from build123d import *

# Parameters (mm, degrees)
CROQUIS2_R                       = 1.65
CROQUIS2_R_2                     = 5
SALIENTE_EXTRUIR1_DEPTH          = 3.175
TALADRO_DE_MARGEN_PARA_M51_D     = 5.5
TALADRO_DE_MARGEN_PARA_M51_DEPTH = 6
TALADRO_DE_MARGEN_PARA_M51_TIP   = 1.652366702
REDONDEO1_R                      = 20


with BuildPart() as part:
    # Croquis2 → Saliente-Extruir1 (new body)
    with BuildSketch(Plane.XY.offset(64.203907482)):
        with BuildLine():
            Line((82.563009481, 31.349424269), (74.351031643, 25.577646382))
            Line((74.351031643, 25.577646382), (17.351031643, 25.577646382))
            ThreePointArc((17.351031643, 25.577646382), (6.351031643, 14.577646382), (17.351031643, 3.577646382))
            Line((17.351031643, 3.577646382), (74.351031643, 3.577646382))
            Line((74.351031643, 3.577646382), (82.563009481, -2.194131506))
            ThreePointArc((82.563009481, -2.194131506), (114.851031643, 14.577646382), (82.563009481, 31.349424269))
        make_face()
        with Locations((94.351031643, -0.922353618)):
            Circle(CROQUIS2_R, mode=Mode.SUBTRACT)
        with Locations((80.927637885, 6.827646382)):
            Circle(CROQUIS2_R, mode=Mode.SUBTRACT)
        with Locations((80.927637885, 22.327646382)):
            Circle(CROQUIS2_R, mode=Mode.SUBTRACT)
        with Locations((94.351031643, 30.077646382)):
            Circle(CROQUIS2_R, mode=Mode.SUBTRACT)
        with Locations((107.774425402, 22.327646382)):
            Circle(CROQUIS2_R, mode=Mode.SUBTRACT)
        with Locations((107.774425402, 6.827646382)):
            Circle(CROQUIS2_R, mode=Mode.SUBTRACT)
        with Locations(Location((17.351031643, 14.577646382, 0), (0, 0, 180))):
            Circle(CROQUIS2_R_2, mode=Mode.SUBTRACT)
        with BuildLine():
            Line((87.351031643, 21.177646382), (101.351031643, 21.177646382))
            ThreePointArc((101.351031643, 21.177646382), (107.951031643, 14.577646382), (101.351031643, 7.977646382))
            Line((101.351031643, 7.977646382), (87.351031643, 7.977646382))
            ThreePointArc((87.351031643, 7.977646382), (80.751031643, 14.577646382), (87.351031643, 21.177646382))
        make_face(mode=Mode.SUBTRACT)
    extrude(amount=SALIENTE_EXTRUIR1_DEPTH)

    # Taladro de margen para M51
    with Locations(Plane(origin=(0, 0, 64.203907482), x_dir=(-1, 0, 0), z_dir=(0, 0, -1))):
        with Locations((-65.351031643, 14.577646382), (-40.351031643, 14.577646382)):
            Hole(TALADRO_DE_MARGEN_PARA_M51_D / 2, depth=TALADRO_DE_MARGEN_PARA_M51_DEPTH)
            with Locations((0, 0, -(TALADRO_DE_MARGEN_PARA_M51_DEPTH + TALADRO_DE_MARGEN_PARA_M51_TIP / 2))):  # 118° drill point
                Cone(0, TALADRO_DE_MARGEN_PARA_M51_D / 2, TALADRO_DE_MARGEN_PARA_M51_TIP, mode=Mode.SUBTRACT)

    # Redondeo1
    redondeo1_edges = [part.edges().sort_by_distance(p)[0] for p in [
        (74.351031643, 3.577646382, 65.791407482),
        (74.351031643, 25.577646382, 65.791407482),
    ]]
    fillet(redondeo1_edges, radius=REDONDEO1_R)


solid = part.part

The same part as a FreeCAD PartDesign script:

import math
import FreeCAD as App
import Part
import Sketcher
from FreeCAD import Vector


def edges_at(feature, points):
    """Names of the edges that pass closest to the given points."""
    edges = feature.Shape.Edges
    near = lambda p: min(range(len(edges)), key=lambda i: edges[i].distToShape(Part.Vertex(*p))[0])
    return sorted({f"Edge{near(p) + 1}" for p in points})

doc = App.newDocument("Part")
body = doc.addObject("PartDesign::Body", "Body")

sketch1 = body.newObject("Sketcher::SketchObject", "Sketch")
sketch1.AttachmentSupport = (doc.getObject("XY_Plane"), [""])
sketch1.MapMode = "FlatFace"
sketch1.AttachmentOffset = App.Placement(Vector(0, 0, 64.203907), App.Rotation())
sketch1.addGeometry(Part.LineSegment(Vector(82.6, 31.3, 0), Vector(74.4, 25.6, 0)), False)
sketch1.addGeometry(Part.LineSegment(Vector(74.4, 25.6, 0), Vector(17.4, 25.6, 0)), False)
sketch1.addGeometry(Part.ArcOfCircle(Part.Circle(Vector(17.4, 14.6, 0), Vector(0, 0, 1), 11), math.radians(90), math.radians(270)), False)
sketch1.addGeometry(Part.LineSegment(Vector(17.4, 3.6, 0), Vector(74.4, 3.6, 0)), False)
sketch1.addGeometry(Part.LineSegment(Vector(74.4, 3.6, 0), Vector(82.6, -2.2, 0)), False)
sketch1.addGeometry(Part.ArcOfCircle(Part.Circle(Vector(94.4, 14.6, 0), Vector(0, 0, 1), 20.5), math.radians(-125), math.radians(125)), False)
sketch1.addGeometry(Part.Circle(Vector(94.4, -0.9, 0), Vector(0, 0, 1), 1.6), False)
sketch1.addGeometry(Part.Circle(Vector(80.9, 6.8, 0), Vector(0, 0, 1), 1.6), False)
sketch1.addGeometry(Part.Circle(Vector(107.8, 6.8, 0), Vector(0, 0, 1), 1.6), False)
sketch1.addGeometry(Part.Circle(Vector(17.4, 14.6, 0), Vector(0, 0, 1), 5), False)
sketch1.addGeometry(Part.Circle(Vector(80.9, 22.3, 0), Vector(0, 0, 1), 1.6), False)
sketch1.addGeometry(Part.ArcOfCircle(Part.Circle(Vector(87.4, 14.6, 0), Vector(0, 0, 1), 6.6), math.radians(90), math.radians(270)), False)
sketch1.addGeometry(Part.LineSegment(Vector(87.4, 21.2, 0), Vector(101.4, 21.2, 0)), False)
sketch1.addGeometry(Part.ArcOfCircle(Part.Circle(Vector(101.4, 14.6, 0), Vector(0, 0, 1), 6.6), math.radians(-90), math.radians(90)), False)
sketch1.addGeometry(Part.LineSegment(Vector(101.4, 8, 0), Vector(87.4, 8, 0)), False)
sketch1.addGeometry(Part.Circle(Vector(107.8, 22.3, 0), Vector(0, 0, 1), 1.6), False)
sketch1.addGeometry(Part.Circle(Vector(94.4, 30.1, 0), Vector(0, 0, 1), 1.6), False)
sketch1.addConstraint(Sketcher.Constraint("Coincident", 0, 2, 1, 1))
sketch1.addConstraint(Sketcher.Constraint("Tangent", 1, 2, 2, 1))
sketch1.addConstraint(Sketcher.Constraint("Tangent", 2, 2, 3, 1))
sketch1.addConstraint(Sketcher.Constraint("Coincident", 3, 2, 4, 1))
sketch1.addConstraint(Sketcher.Constraint("Tangent", 4, 2, 5, 1))
sketch1.addConstraint(Sketcher.Constraint("Tangent", 5, 2, 0, 1))
sketch1.addConstraint(Sketcher.Constraint("Tangent", 11, 1, 12, 1))
sketch1.addConstraint(Sketcher.Constraint("Tangent", 12, 2, 13, 2))
sketch1.addConstraint(Sketcher.Constraint("Tangent", 13, 1, 14, 1))
sketch1.addConstraint(Sketcher.Constraint("Tangent", 14, 2, 11, 2))
sketch1.addConstraint(Sketcher.Constraint("Horizontal", 1))
sketch1.addConstraint(Sketcher.Constraint("Horizontal", 3))
sketch1.addConstraint(Sketcher.Constraint("Horizontal", 12))
sketch1.addConstraint(Sketcher.Constraint("Horizontal", 14))
sketch1.addConstraint(Sketcher.Constraint("Coincident", 9, 3, 2, 3))
sketch1.addConstraint(Sketcher.Constraint("Equal", 6, 7))
sketch1.addConstraint(Sketcher.Constraint("Equal", 7, 8))
sketch1.addConstraint(Sketcher.Constraint("Equal", 8, 10))
sketch1.addConstraint(Sketcher.Constraint("Equal", 10, 15))
sketch1.addConstraint(Sketcher.Constraint("Equal", 15, 16))
sketch1.addConstraint(Sketcher.Constraint("Horizontal", 2, 3, 5, 3))
sketch1.addConstraint(Sketcher.Constraint("Horizontal", 7, 3, 8, 3))
sketch1.addConstraint(Sketcher.Constraint("Horizontal", 9, 3, 11, 3))
sketch1.addConstraint(Sketcher.Constraint("Horizontal", 10, 3, 15, 3))
sketch1.addConstraint(Sketcher.Constraint("Vertical", 5, 3, 6, 3))
sketch1.addConstraint(Sketcher.Constraint("Vertical", 7, 3, 10, 3))
sketch1.addConstraint(Sketcher.Constraint("Vertical", 8, 3, 15, 3))
sketch1.addConstraint(Sketcher.Constraint("Vertical", 6, 3, 16, 3))
sketch1.addConstraint(Sketcher.Constraint("Vertical", 0, 2, 3, 2))
sketch1.addConstraint(Sketcher.Constraint("Diameter", 9, 10.0))
sketch1.addConstraint(Sketcher.Constraint("Radius", 2, 11.0))
sketch1.addConstraint(Sketcher.Constraint("Diameter", 6, 3.3))
sketch1.addConstraint(Sketcher.Constraint("Radius", 5, 20.5))
sketch1.addConstraint(Sketcher.Constraint("Radius", 11, 6.6))
sketch1.addConstraint(Sketcher.Constraint("DistanceX", 1, 2, 1, 1, 57.0))
sketch1.addConstraint(Sketcher.Constraint("DistanceX", 12, 1, 12, 2, 14.0))
sketch1.addConstraint(Sketcher.Constraint("DistanceX", 2, 3, 5, 3, 77.0))
sketch1.addConstraint(Sketcher.Constraint("DistanceX", 11, 3, 5, 3, 7.0))
sketch1.addConstraint(Sketcher.Constraint("DistanceY", 6, 3, 5, 3, 15.5))
sketch1.addConstraint(Sketcher.Constraint("DistanceY", 7, 3, 10, 3, 15.5))
sketch1.addConstraint(Sketcher.Constraint("DistanceY", 5, 3, 16, 3, 15.5))
sketch1.addConstraint(Sketcher.Constraint("DistanceY", 7, 3, 5, 3, 7.75))
sketch1.addConstraint(Sketcher.Constraint("DistanceX", -1, 1, 2, 3, 17.351032))
sketch1.addConstraint(Sketcher.Constraint("DistanceY", 4, 2, -1, 1, 2.194132))
sketch1.addConstraint(Sketcher.Constraint("DistanceX", 7, 3, 4, 2, 1.635372))
sketch1.addConstraint(Sketcher.Constraint("DistanceX", -1, 1, 8, 3, 107.774425))
pad1 = body.newObject("PartDesign::Pad", "Pad")
pad1.Profile = sketch1
pad1.Length = 3.175

sketch2 = body.newObject("Sketcher::SketchObject", "Sketch001")
sketch2.AttachmentSupport = (doc.getObject("XY_Plane"), [""])
sketch2.MapMode = "FlatFace"
sketch2.AttachmentOffset = App.Placement(Vector(0, 0, 64.203907), App.Rotation())
sketch2.addGeometry(Part.Circle(Vector(65.4, 14.6, 0), Vector(0, 0, 1), 2.8), False)
sketch2.addGeometry(Part.Circle(Vector(40.4, 14.6, 0), Vector(0, 0, 1), 2.8), False)
sketch2.addConstraint(Sketcher.Constraint("Equal", 0, 1))
sketch2.addConstraint(Sketcher.Constraint("Horizontal", 0, 3, 1, 3))
sketch2.addConstraint(Sketcher.Constraint("Diameter", 0, 5.5))
sketch2.addConstraint(Sketcher.Constraint("DistanceX", 1, 3, 0, 3, 25.0))
sketch2.addConstraint(Sketcher.Constraint("DistanceX", -1, 1, 0, 3, 65.351032))
sketch2.addConstraint(Sketcher.Constraint("DistanceY", -1, 1, 0, 3, 14.577646))
doc.recompute()
hole = body.newObject("PartDesign::Hole", "Hole")
hole.Profile = sketch2
hole.ThreadType = "None"
hole.Diameter = 5.5
hole.DepthType = "Dimension"
hole.Depth = 6
hole.DrillPoint = "Angled"
hole.DrillPointAngle = 118
hole.Reversed = True
doc.recompute()

fillet = body.newObject("PartDesign::Fillet", "Fillet")
fillet.Base = (hole, edges_at(hole, [(74.351, 3.578, 65.791), (74.351, 25.578, 65.791)]))
fillet.Radius = 20

doc.recompute()
